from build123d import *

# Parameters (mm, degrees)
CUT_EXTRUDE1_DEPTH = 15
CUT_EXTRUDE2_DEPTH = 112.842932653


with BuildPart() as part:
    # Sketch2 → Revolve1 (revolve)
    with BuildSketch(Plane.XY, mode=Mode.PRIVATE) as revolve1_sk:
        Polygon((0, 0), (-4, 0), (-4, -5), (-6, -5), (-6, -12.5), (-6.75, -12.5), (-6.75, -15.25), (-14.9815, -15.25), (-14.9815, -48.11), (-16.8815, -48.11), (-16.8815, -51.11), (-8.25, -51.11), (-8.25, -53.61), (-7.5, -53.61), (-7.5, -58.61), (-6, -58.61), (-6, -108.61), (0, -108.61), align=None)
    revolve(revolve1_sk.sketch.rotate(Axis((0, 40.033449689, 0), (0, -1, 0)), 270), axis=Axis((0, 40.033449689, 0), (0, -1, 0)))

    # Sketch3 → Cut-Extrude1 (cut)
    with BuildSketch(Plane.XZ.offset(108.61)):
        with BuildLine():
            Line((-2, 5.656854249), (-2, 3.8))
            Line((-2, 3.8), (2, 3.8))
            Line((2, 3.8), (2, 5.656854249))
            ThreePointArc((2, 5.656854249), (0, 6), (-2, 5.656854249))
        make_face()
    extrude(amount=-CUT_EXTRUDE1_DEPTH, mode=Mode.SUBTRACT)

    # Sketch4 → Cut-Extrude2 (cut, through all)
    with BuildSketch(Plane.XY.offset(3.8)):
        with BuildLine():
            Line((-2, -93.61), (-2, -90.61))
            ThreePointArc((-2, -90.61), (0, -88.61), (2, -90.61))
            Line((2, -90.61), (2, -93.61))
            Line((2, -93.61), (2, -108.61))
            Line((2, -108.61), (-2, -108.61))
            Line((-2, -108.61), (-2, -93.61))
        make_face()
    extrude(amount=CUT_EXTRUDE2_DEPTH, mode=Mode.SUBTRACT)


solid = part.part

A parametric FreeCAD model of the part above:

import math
import FreeCAD as App
import Part
import Sketcher
from FreeCAD import Vector


def add_polygon(sketch, points):
    """Adds a closed chain of lines whose ends are joined by coincident constraints."""
    first, n = sketch.GeometryCount, len(points)
    for a, b in zip(points, points[1:] + points[:1]):
        sketch.addGeometry(Part.LineSegment(App.Vector(*a, 0), App.Vector(*b, 0)), False)
    for i in range(n):
        sketch.addConstraint(Sketcher.Constraint("Coincident", first + i, 2, first + (i + 1) % n, 1))

doc = App.newDocument("Part")
body = doc.addObject("PartDesign::Body", "Body")

sketch1 = body.newObject("Sketcher::SketchObject", "Sketch")
sketch1.AttachmentSupport = (doc.getObject("XY_Plane"), [""])
sketch1.MapMode = "FlatFace"
add_polygon(sketch1, [(0, 0), (-4, 0), (-4, -5), (-6, -5), (-6, -12.5), (-6.8, -12.5), (-6.8, -15.2), (-15, -15.2), (-15, -48.1), (-16.9, -48.1), (-16.9, -51.1), (-8.2, -51.1), (-8.2, -53.6), (-7.5, -53.6), (-7.5, -58.6), (-6, -58.6), (-6, -108.6), (0, -108.6)])
sketch1.addConstraint(Sketcher.Constraint("Horizontal", 0))
sketch1.addConstraint(Sketcher.Constraint("Vertical", 1))
sketch1.addConstraint(Sketcher.Constraint("Horizontal", 2))
sketch1.addConstraint(Sketcher.Constraint("Vertical", 3))
sketch1.addConstraint(Sketcher.Constraint("Horizontal", 4))
sketch1.addConstraint(Sketcher.Constraint("Vertical", 5))
sketch1.addConstraint(Sketcher.Constraint("Horizontal", 6))
sketch1.addConstraint(Sketcher.Constraint("Vertical", 7))
sketch1.addConstraint(Sketcher.Constraint("Horizontal", 8))
sketch1.addConstraint(Sketcher.Constraint("Vertical", 9))
sketch1.addConstraint(Sketcher.Constraint("Horizontal", 10))
sketch1.addConstraint(Sketcher.Constraint("Vertical", 11))
sketch1.addConstraint(Sketcher.Constraint("Horizontal", 12))
sketch1.addConstraint(Sketcher.Constraint("Vertical", 13))
sketch1.addConstraint(Sketcher.Constraint("Horizontal", 14))
sketch1.addConstraint(Sketcher.Constraint("Vertical", 15))
sketch1.addConstraint(Sketcher.Constraint("Horizontal", 16))
sketch1.addConstraint(Sketcher.Constraint("Vertical", 17))
sketch1.addConstraint(Sketcher.Constraint("Coincident", 17, 2, -1, 1))
sketch1.addConstraint(Sketcher.Constraint("Vertical", 3, 2, 14, 2))
sketch1.addConstraint(Sketcher.Constraint("Equal", 4, 12))
sketch1.addConstraint(Sketcher.Constraint("Equal", 1, 13))
sketch1.addConstraint(Sketcher.Constraint("DistanceX", 0, 2, 0, 1, 4.0))
sketch1.addConstraint(Sketcher.Constraint("DistanceX", 2, 2, 2, 1, 2.0))
sketch1.addConstraint(Sketcher.Constraint("DistanceY", 1, 2, 1, 1, 5.0))
sketch1.addConstraint(Sketcher.Constraint("DistanceY", 9, 2, 9, 1, 3.0))
sketch1.addConstraint(Sketcher.Constraint("DistanceY", 15, 2, 15, 1, 50.0))
sketch1.addConstraint(Sketcher.Constraint("DistanceX", 8, 2, 8, 1, 1.9))
sketch1.addConstraint(Sketcher.Constraint("DistanceX", 14, 1, 14, 2, 1.5))
sketch1.addConstraint(Sketcher.Constraint("DistanceY", 3, 2, 3, 1, 7.5))
sketch1.addConstraint(Sketcher.Constraint("DistanceY", 11, 2, 11, 1, 2.5))
sketch1.addConstraint(Sketcher.Constraint("DistanceX", 4, 2, 4, 1, 0.75))
sketch1.addConstraint(Sketcher.Constraint("DistanceY", 5, 2, 5, 1, 2.75))
sketch1.addConstraint(Sketcher.Constraint("DistanceY", 7, 2, 7, 1, 32.86))
sketch1.addConstraint(Sketcher.Constraint("DistanceX", 6, 2, 6, 1, 8.2315))
revolution = body.newObject("PartDesign::Revolution", "Revolution")
revolution.Profile = sketch1
revolution.ReferenceAxis = (sketch1, ["V_Axis"])
revolution.Angle = 360

sketch2 = body.newObject("Sketcher::SketchObject", "Sketch001")
sketch2.AttachmentSupport = (doc.getObject("XZ_Plane"), [""])
sketch2.MapMode = "FlatFace"
sketch2.AttachmentOffset = App.Placement(Vector(0, 0, 108.61), App.Rotation())
sketch2.addGeometry(Part.LineSegment(Vector(-2, 5.7, 0), Vector(-2, 3.8, 0)), False)
sketch2.addGeometry(Part.LineSegment(Vector(-2, 3.8, 0), Vector(2, 3.8, 0)), False)
sketch2.addGeometry(Part.LineSegment(Vector(2, 3.8, 0), Vector(2, 5.7, 0)), False)
sketch2.addGeometry(Part.ArcOfCircle(Part.Circle(Vector(0, 0, 0), Vector(0, 0, 1), 6), math.radians(71), math.radians(109)), False)
sketch2.addConstraint(Sketcher.Constraint("Coincident", 0, 2, 1, 1))
sketch2.addConstraint(Sketcher.Constraint("Coincident", 1, 2, 2, 1))
sketch2.addConstraint(Sketcher.Constraint("Coincident", 2, 2, 3, 1))
sketch2.addConstraint(Sketcher.Constraint("Coincident", 3, 2, 0, 1))
sketch2.addConstraint(Sketcher.Constraint("Vertical", 0))
sketch2.addConstraint(Sketcher.Constraint("Horizontal", 1))
sketch2.addConstraint(Sketcher.Constraint("Vertical", 2))
sketch2.addConstraint(Sketcher.Constraint("Coincident", 3, 3, -1, 1))
sketch2.addConstraint(Sketcher.Constraint("Horizontal", 2, 2, 3, 2))
sketch2.addConstraint(Sketcher.Constraint("Radius", 3, 6.0))
sketch2.addConstraint(Sketcher.Constraint("DistanceX", 1, 1, 1, 2, 4.0))
sketch2.addConstraint(Sketcher.Constraint("DistanceY", -1, 1, 0, 2, 3.8))
pocket1 = body.newObject("PartDesign::Pocket", "Pocket")
pocket1.Profile = sketch2
pocket1.Length = 15

sketch3 = body.newObject("Sketcher::SketchObject", "Sketch002")
sketch3.AttachmentSupport = (doc.getObject("XY_Plane"), [""])
sketch3.MapMode = "FlatFace"
sketch3.AttachmentOffset = App.Placement(Vector(0, 0, 3.8), App.Rotation())
sketch3.addGeometry(Part.ArcOfCircle(Part.Circle(Vector(0, -90.6, 0), Vector(0, 0, 1), 2), math.radians(0), math.radians(180)), False)
sketch3.addGeometry(Part.LineSegment(Vector(-2, -90.6, 0), Vector(-2, -108.6, 0)), False)
sketch3.addGeometry(Part.LineSegment(Vector(-2, -108.6, 0), Vector(2, -108.6, 0)), False)
sketch3.addGeometry(Part.LineSegment(Vector(2, -108.6, 0), Vector(2, -90.6, 0)), False)
sketch3.addConstraint(Sketcher.Constraint("Tangent", 0, 2, 1, 1))
sketch3.addConstraint(Sketcher.Constraint("Coincident", 1, 2, 2, 1))
sketch3.addConstraint(Sketcher.Constraint("Coincident", 2, 2, 3, 1))
sketch3.addConstraint(Sketcher.Constraint("Tangent", 3, 2, 0, 1))
sketch3.addConstraint(Sketcher.Constraint("Vertical", 1))
sketch3.addConstraint(Sketcher.Constraint("Horizontal", 2))
sketch3.addConstraint(Sketcher.Constraint("Vertical", 3))
sketch3.addConstraint(Sketcher.Constraint("PointOnObject", 0, 3, -2))
sketch3.addConstraint(Sketcher.Constraint("Radius", 0, 2.0))
sketch3.addConstraint(Sketcher.Constraint("DistanceY", 1, 2, 1, 1, 18.0))
sketch3.addConstraint(Sketcher.Constraint("DistanceY", 0, 3, -1, 1, 90.61))
pocket2 = body.newObject("PartDesign::Pocket", "Pocket001")
pocket2.Profile = sketch3
pocket2.Type = "ThroughAll"
pocket2.Reversed = True

doc.recompute()
